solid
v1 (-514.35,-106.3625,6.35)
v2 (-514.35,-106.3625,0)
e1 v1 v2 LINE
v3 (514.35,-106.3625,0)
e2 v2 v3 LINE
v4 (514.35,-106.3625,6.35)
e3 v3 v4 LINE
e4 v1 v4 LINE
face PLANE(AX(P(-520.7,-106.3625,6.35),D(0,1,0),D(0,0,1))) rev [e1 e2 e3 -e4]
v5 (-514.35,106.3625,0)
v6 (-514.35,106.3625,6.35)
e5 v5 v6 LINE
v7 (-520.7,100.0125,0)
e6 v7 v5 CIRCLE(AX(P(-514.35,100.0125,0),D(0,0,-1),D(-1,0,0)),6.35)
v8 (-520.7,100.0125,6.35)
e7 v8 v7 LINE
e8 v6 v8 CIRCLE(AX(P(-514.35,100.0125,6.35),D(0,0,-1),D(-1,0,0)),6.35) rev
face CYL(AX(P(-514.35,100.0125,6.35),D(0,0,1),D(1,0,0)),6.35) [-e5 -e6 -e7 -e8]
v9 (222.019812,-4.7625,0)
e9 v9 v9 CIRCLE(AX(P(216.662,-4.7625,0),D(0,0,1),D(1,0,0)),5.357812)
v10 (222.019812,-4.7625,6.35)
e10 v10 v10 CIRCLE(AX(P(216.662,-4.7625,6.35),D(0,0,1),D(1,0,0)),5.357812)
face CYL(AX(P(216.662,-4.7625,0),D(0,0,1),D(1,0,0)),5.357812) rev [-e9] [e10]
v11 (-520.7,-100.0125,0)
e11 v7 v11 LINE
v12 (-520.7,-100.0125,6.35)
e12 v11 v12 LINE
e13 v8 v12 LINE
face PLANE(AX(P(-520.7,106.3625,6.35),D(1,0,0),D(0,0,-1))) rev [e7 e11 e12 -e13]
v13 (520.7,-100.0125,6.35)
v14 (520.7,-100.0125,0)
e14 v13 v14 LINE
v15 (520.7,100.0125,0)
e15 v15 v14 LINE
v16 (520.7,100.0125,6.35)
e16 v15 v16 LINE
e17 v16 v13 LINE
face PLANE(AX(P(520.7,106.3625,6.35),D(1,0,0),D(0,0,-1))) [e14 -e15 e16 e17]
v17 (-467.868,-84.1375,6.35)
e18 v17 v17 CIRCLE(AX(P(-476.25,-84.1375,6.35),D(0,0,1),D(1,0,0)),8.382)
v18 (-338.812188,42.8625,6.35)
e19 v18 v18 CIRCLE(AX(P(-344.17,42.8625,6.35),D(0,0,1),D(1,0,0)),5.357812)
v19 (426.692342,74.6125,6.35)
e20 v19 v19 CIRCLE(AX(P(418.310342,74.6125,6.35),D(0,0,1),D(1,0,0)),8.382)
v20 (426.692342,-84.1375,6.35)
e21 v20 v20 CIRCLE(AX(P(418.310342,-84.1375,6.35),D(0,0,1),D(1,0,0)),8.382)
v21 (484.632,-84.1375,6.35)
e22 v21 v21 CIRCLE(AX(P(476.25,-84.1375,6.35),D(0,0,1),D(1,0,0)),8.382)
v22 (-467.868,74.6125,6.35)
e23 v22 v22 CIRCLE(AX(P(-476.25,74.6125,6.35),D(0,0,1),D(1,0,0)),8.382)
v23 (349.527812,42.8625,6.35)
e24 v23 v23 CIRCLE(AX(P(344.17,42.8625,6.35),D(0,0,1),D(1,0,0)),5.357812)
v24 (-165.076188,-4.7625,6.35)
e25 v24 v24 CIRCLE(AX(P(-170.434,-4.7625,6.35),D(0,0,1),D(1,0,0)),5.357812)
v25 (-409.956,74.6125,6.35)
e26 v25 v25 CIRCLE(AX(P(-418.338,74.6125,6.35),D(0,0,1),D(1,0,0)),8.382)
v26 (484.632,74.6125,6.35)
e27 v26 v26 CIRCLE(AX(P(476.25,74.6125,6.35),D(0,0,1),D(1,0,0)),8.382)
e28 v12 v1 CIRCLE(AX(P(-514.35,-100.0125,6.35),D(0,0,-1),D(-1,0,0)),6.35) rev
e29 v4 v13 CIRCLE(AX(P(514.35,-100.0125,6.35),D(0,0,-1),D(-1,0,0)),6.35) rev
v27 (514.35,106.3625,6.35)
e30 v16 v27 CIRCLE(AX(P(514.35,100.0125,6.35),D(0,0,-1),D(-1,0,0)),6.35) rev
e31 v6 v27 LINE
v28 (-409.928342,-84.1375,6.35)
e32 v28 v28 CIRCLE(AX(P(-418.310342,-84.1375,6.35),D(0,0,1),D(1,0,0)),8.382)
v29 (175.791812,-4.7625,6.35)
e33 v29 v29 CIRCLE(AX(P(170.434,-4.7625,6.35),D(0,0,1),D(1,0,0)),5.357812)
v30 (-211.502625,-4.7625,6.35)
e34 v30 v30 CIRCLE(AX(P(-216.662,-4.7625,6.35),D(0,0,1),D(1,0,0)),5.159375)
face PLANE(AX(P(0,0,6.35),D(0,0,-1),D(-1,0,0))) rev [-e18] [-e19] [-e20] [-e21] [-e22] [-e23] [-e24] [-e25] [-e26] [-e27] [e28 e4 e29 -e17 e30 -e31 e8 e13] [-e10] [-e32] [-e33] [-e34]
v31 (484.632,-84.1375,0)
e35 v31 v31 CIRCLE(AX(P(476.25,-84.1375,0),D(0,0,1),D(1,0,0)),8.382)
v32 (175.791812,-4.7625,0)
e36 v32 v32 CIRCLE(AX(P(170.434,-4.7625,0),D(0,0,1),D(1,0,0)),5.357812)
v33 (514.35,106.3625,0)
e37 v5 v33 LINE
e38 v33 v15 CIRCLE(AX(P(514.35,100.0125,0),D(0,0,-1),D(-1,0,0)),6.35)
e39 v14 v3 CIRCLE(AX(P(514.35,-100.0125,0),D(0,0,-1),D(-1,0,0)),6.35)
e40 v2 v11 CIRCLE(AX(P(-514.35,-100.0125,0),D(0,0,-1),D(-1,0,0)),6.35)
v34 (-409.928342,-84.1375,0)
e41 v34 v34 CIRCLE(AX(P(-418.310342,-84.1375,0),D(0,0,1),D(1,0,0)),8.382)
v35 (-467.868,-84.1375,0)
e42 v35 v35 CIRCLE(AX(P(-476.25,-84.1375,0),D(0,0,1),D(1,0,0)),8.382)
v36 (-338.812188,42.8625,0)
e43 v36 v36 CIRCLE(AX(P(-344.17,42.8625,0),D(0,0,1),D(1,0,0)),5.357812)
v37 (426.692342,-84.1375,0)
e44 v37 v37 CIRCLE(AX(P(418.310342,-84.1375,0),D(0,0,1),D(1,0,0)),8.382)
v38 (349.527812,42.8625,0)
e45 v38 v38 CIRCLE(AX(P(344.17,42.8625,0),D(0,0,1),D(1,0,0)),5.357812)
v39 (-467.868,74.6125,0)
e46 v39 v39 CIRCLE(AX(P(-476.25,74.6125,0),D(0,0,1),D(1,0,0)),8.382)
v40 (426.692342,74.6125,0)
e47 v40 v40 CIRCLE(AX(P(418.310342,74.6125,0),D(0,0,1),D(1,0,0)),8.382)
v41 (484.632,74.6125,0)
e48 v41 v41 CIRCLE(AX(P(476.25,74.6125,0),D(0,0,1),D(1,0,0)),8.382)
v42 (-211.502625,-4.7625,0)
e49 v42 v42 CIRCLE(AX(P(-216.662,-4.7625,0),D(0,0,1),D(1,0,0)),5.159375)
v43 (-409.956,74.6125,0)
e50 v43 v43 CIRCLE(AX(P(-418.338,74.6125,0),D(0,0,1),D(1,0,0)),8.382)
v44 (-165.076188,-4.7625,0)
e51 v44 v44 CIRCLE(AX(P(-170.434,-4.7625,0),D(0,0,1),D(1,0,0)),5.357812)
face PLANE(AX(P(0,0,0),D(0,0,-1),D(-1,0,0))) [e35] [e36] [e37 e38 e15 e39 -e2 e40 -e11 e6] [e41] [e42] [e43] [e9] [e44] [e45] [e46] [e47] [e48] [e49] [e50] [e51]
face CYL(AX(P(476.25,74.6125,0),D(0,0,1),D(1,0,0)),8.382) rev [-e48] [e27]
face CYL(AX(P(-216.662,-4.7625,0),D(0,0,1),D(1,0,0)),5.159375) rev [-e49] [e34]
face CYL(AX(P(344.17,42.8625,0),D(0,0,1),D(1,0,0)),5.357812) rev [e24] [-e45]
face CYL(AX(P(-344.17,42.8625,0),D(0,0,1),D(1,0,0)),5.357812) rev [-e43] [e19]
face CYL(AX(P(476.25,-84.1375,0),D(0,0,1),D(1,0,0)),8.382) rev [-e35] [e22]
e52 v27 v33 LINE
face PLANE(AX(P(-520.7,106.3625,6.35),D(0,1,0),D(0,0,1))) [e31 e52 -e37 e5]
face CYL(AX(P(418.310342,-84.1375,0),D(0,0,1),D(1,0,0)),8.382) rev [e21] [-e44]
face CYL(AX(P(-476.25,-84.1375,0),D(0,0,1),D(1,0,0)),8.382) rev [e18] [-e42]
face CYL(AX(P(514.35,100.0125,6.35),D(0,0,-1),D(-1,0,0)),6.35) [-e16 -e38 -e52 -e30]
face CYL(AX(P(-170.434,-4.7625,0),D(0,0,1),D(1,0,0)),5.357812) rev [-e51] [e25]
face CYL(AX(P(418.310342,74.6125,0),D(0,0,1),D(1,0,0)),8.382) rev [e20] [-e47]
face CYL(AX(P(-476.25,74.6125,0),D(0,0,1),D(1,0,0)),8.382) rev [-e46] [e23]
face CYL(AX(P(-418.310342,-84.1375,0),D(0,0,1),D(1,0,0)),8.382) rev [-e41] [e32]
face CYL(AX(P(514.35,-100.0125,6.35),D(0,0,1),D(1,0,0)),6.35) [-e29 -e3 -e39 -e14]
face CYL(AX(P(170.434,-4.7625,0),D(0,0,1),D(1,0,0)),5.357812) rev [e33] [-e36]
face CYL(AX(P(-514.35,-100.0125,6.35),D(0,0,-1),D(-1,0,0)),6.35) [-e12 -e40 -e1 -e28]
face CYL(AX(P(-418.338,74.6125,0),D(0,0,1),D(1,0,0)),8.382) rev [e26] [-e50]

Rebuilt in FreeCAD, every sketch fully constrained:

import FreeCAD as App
import Part
import Sketcher
Q = App.Units.Quantity


def edges_at(feature, points):
    """Names of the edges that pass closest to the given points."""
    edges = feature.Shape.Edges
    near = lambda p: min(range(len(edges)), key=lambda i: edges[i].distToShape(Part.Vertex(*p))[0])
    return sorted({f"Edge{near(p) + 1}" for p in points})

doc = App.newDocument("Part")
params = doc.addObject("Spreadsheet::Sheet", "Params")
for row, (alias, value) in enumerate([
    ("sketch1_width", "41 in"),
    ("sketch1_height", "8.375 in"),
    ("pad1_length", "0.25 in"),
    ("sketch2_diameter", "0.66 in"),
    ("sketch3_diameter", "0.40625 in"),
    ("sketch3_diameter2", "0.421875 in"),
    ("fillet_radius", "0.25 in"),
], start=1):
    params.set(f"A{row}", alias)
    params.set(f"B{row}", "=" + value)
    params.setAlias(f"B{row}", alias)

body = doc.addObject("PartDesign::Body", "Body")

sketch1 = body.newObject("Sketcher::SketchObject", "Sketch")
sketch1.AttachmentSupport = (doc.getObject("XY_Plane"), [""])
sketch1.MapMode = "FlatFace"
sketch1.addGeometry(Part.LineSegment(App.Vector(-521, 106, 0), App.Vector(-521, -106, 0)), False)
sketch1.addGeometry(Part.LineSegment(App.Vector(-521, -106, 0), App.Vector(521, -106, 0)), False)
sketch1.addGeometry(Part.LineSegment(App.Vector(521, -106, 0), App.Vector(521, 106, 0)), False)
sketch1.addGeometry(Part.LineSegment(App.Vector(521, 106, 0), App.Vector(-521, 106, 0)), False)
sketch1.addConstraint(Sketcher.Constraint("Coincident", 0, 2, 1, 1))
sketch1.addConstraint(Sketcher.Constraint("Coincident", 1, 2, 2, 1))
sketch1.addConstraint(Sketcher.Constraint("Coincident", 2, 2, 3, 1))
sketch1.addConstraint(Sketcher.Constraint("Coincident", 3, 2, 0, 1))
sketch1.addConstraint(Sketcher.Constraint("Vertical", 0))
sketch1.addConstraint(Sketcher.Constraint("Horizontal", 1))
sketch1.addConstraint(Sketcher.Constraint("Vertical", 2))
sketch1.addConstraint(Sketcher.Constraint("Horizontal", 3))
sketch1.addConstraint(Sketcher.Constraint("Symmetric", 0, 2, 2, 2, -1, 1))
sketch1.addConstraint(Sketcher.Constraint("DistanceX", 1, 1, 1, 2, Q("41 in")))
sketch1.addConstraint(Sketcher.Constraint("DistanceY", 0, 2, 0, 1, Q("8.375 in")))
sketch1.setExpression("Constraints[9]", "Params.sketch1_width")
sketch1.setExpression("Constraints[10]", "Params.sketch1_height")
pad1 = body.newObject("PartDesign::Pad", "Pad")
pad1.Profile = sketch1
pad1.setExpression("Length", "Params.pad1_length")

sketch2 = body.newObject("Sketcher::SketchObject", "Sketch001")
sketch2.AttachmentSupport = (doc.getObject("XY_Plane"), [""])
sketch2.MapMode = "FlatFace"
sketch2.AttachmentOffset = App.Placement(App.Vector(0, 0, 0.25 * 25.4), App.Rotation())
sketch2.addGeometry(Part.Circle(App.Vector(476, 75, 0), App.Vector(0, 0, 1), 8), False)
sketch2.addGeometry(Part.Circle(App.Vector(418, 75, 0), App.Vector(0, 0, 1), 8), False)
sketch2.addGeometry(Part.Circle(App.Vector(-476, 75, 0), App.Vector(0, 0, 1), 8), False)
sketch2.addGeometry(Part.Circle(App.Vector(-418, 75, 0), App.Vector(0, 0, 1), 8), False)
sketch2.addGeometry(Part.Circle(App.Vector(476, -84, 0), App.Vector(0, 0, 1), 8), False)
sketch2.addGeometry(Part.Circle(App.Vector(418, -84, 0), App.Vector(0, 0, 1), 8), False)
sketch2.addGeometry(Part.Circle(App.Vector(-476, -84, 0), App.Vector(0, 0, 1), 8), False)
sketch2.addGeometry(Part.Circle(App.Vector(-418, -84, 0), App.Vector(0, 0, 1), 8), False)
sketch2.addConstraint(Sketcher.Constraint("Equal", 0, 1))
sketch2.addConstraint(Sketcher.Constraint("Equal", 1, 2))
sketch2.addConstraint(Sketcher.Constraint("Equal", 2, 3))
sketch2.addConstraint(Sketcher.Constraint("Equal", 3, 4))
sketch2.addConstraint(Sketcher.Constraint("Equal", 4, 5))
sketch2.addConstraint(Sketcher.Constraint("Equal", 5, 6))
sketch2.addConstraint(Sketcher.Constraint("Equal", 6, 7))
sketch2.addConstraint(Sketcher.Constraint("Symmetric", 0, 3, 2, 3, -2))
sketch2.addConstraint(Sketcher.Constraint("Symmetric", 4, 3, 6, 3, -2))
sketch2.addConstraint(Sketcher.Constraint("Symmetric", 5, 3, 7, 3, -2))
sketch2.addConstraint(Sketcher.Constraint("Horizontal", 0, 3, 1, 3))
sketch2.addConstraint(Sketcher.Constraint("Horizontal", 2, 3, 3, 3))
sketch2.addConstraint(Sketcher.Constraint("Horizontal", 4, 3, 5, 3))
sketch2.addConstraint(Sketcher.Constraint("Vertical", 0, 3, 4, 3))
sketch2.addConstraint(Sketcher.Constraint("Vertical", 1, 3, 5, 3))
sketch2.addConstraint(Sketcher.Constraint("Diameter", 0, Q("0.66 in")))
sketch2.addConstraint(Sketcher.Constraint("DistanceX", 2, 3, 0, 3, Q("37.5 in")))
sketch2.addConstraint(Sketcher.Constraint("DistanceX", 3, 3, -1, 1, Q("16.47 in")))
sketch2.addConstraint(Sketcher.Constraint("DistanceY", 4, 3, 0, 3, Q("6.25 in")))
sketch2.addConstraint(Sketcher.Constraint("DistanceY", -1, 1, 0, 3, Q("2.9375 in")))
sketch2.addConstraint(Sketcher.Constraint("DistanceX", -1, 1, 1, 3, Q("418.310342 mm")))
sketch2.setExpression("Constraints[15]", "Params.sketch2_diameter")
pocket1 = body.newObject("PartDesign::Pocket", "Pocket")
pocket1.Profile = sketch2
pocket1.Type = "ThroughAll"

sketch3 = body.newObject("Sketcher::SketchObject", "Sketch002")
sketch3.AttachmentSupport = (doc.getObject("XY_Plane"), [""])
sketch3.MapMode = "FlatFace"
sketch3.AttachmentOffset = App.Placement(App.Vector(0, 0, 0.25 * 25.4), App.Rotation())
sketch3.addGeometry(Part.Circle(App.Vector(-217, -5, 0), App.Vector(0, 0, 1), 5), False)
sketch3.addGeometry(Part.Circle(App.Vector(-170, -5, 0), App.Vector(0, 0, 1), 5), False)
sketch3.addGeometry(Part.Circle(App.Vector(170, -5, 0), App.Vector(0, 0, 1), 5), False)
sketch3.addGeometry(Part.Circle(App.Vector(217, -5, 0), App.Vector(0, 0, 1), 5), False)
sketch3.addGeometry(Part.Circle(App.Vector(344, 43, 0), App.Vector(0, 0, 1), 5), False)
sketch3.addGeometry(Part.Circle(App.Vector(-344, 43, 0), App.Vector(0, 0, 1), 5), False)
sketch3.addConstraint(Sketcher.Constraint("Equal", 1, 2))
sketch3.addConstraint(Sketcher.Constraint("Equal", 2, 3))
sketch3.addConstraint(Sketcher.Constraint("Equal", 3, 4))
sketch3.addConstraint(Sketcher.Constraint("Equal", 4, 5))
sketch3.addConstraint(Sketcher.Constraint("Symmetric", 1, 3, 2, 3, -2))
sketch3.addConstraint(Sketcher.Constraint("Symmetric", 0, 3, 3, 3, -2))
sketch3.addConstraint(Sketcher.Constraint("Symmetric", 4, 3, 5, 3, -2))
sketch3.addConstraint(Sketcher.Constraint("Horizontal", 0, 3, 1, 3))
sketch3.addConstraint(Sketcher.Constraint("Diameter", 0, Q("0.40625 in")))
sketch3.addConstraint(Sketcher.Constraint("Diameter", 1, Q("0.421875 in")))
sketch3.addConstraint(Sketcher.Constraint("DistanceX", 5, 3, 4, 3, Q("27.1 in")))
sketch3.addConstraint(Sketcher.Constraint("DistanceX", 0, 3, -1, 1, Q("8.53 in")))
sketch3.addConstraint(Sketcher.Constraint("DistanceX", 1, 3, -1, 1, Q("6.71 in")))
sketch3.addConstraint(Sketcher.Constraint("DistanceY", 0, 3, -1, 1, Q("0.1875 in")))
sketch3.addConstraint(Sketcher.Constraint("DistanceY", -1, 1, 4, 3, Q("1.6875 in")))
sketch3.setExpression("Constraints[8]", "Params.sketch3_diameter")
sketch3.setExpression("Constraints[9]", "Params.sketch3_diameter2")
pocket2 = body.newObject("PartDesign::Pocket", "Pocket001")
pocket2.Profile = sketch3
pocket2.Type = "ThroughAll"
doc.recompute()

fillet = body.newObject("PartDesign::Fillet", "Fillet")
fillet.Base = (pocket2, edges_at(pocket2, [
    (-520.7, -106.362, 3.175),
    (-520.7, 106.362, 3.175),
    (520.7, 106.362, 3.175),
    (520.7, -106.362, 3.175),
]))
fillet.setExpression("Radius", "Params.fillet_radius")

doc.recompute()
